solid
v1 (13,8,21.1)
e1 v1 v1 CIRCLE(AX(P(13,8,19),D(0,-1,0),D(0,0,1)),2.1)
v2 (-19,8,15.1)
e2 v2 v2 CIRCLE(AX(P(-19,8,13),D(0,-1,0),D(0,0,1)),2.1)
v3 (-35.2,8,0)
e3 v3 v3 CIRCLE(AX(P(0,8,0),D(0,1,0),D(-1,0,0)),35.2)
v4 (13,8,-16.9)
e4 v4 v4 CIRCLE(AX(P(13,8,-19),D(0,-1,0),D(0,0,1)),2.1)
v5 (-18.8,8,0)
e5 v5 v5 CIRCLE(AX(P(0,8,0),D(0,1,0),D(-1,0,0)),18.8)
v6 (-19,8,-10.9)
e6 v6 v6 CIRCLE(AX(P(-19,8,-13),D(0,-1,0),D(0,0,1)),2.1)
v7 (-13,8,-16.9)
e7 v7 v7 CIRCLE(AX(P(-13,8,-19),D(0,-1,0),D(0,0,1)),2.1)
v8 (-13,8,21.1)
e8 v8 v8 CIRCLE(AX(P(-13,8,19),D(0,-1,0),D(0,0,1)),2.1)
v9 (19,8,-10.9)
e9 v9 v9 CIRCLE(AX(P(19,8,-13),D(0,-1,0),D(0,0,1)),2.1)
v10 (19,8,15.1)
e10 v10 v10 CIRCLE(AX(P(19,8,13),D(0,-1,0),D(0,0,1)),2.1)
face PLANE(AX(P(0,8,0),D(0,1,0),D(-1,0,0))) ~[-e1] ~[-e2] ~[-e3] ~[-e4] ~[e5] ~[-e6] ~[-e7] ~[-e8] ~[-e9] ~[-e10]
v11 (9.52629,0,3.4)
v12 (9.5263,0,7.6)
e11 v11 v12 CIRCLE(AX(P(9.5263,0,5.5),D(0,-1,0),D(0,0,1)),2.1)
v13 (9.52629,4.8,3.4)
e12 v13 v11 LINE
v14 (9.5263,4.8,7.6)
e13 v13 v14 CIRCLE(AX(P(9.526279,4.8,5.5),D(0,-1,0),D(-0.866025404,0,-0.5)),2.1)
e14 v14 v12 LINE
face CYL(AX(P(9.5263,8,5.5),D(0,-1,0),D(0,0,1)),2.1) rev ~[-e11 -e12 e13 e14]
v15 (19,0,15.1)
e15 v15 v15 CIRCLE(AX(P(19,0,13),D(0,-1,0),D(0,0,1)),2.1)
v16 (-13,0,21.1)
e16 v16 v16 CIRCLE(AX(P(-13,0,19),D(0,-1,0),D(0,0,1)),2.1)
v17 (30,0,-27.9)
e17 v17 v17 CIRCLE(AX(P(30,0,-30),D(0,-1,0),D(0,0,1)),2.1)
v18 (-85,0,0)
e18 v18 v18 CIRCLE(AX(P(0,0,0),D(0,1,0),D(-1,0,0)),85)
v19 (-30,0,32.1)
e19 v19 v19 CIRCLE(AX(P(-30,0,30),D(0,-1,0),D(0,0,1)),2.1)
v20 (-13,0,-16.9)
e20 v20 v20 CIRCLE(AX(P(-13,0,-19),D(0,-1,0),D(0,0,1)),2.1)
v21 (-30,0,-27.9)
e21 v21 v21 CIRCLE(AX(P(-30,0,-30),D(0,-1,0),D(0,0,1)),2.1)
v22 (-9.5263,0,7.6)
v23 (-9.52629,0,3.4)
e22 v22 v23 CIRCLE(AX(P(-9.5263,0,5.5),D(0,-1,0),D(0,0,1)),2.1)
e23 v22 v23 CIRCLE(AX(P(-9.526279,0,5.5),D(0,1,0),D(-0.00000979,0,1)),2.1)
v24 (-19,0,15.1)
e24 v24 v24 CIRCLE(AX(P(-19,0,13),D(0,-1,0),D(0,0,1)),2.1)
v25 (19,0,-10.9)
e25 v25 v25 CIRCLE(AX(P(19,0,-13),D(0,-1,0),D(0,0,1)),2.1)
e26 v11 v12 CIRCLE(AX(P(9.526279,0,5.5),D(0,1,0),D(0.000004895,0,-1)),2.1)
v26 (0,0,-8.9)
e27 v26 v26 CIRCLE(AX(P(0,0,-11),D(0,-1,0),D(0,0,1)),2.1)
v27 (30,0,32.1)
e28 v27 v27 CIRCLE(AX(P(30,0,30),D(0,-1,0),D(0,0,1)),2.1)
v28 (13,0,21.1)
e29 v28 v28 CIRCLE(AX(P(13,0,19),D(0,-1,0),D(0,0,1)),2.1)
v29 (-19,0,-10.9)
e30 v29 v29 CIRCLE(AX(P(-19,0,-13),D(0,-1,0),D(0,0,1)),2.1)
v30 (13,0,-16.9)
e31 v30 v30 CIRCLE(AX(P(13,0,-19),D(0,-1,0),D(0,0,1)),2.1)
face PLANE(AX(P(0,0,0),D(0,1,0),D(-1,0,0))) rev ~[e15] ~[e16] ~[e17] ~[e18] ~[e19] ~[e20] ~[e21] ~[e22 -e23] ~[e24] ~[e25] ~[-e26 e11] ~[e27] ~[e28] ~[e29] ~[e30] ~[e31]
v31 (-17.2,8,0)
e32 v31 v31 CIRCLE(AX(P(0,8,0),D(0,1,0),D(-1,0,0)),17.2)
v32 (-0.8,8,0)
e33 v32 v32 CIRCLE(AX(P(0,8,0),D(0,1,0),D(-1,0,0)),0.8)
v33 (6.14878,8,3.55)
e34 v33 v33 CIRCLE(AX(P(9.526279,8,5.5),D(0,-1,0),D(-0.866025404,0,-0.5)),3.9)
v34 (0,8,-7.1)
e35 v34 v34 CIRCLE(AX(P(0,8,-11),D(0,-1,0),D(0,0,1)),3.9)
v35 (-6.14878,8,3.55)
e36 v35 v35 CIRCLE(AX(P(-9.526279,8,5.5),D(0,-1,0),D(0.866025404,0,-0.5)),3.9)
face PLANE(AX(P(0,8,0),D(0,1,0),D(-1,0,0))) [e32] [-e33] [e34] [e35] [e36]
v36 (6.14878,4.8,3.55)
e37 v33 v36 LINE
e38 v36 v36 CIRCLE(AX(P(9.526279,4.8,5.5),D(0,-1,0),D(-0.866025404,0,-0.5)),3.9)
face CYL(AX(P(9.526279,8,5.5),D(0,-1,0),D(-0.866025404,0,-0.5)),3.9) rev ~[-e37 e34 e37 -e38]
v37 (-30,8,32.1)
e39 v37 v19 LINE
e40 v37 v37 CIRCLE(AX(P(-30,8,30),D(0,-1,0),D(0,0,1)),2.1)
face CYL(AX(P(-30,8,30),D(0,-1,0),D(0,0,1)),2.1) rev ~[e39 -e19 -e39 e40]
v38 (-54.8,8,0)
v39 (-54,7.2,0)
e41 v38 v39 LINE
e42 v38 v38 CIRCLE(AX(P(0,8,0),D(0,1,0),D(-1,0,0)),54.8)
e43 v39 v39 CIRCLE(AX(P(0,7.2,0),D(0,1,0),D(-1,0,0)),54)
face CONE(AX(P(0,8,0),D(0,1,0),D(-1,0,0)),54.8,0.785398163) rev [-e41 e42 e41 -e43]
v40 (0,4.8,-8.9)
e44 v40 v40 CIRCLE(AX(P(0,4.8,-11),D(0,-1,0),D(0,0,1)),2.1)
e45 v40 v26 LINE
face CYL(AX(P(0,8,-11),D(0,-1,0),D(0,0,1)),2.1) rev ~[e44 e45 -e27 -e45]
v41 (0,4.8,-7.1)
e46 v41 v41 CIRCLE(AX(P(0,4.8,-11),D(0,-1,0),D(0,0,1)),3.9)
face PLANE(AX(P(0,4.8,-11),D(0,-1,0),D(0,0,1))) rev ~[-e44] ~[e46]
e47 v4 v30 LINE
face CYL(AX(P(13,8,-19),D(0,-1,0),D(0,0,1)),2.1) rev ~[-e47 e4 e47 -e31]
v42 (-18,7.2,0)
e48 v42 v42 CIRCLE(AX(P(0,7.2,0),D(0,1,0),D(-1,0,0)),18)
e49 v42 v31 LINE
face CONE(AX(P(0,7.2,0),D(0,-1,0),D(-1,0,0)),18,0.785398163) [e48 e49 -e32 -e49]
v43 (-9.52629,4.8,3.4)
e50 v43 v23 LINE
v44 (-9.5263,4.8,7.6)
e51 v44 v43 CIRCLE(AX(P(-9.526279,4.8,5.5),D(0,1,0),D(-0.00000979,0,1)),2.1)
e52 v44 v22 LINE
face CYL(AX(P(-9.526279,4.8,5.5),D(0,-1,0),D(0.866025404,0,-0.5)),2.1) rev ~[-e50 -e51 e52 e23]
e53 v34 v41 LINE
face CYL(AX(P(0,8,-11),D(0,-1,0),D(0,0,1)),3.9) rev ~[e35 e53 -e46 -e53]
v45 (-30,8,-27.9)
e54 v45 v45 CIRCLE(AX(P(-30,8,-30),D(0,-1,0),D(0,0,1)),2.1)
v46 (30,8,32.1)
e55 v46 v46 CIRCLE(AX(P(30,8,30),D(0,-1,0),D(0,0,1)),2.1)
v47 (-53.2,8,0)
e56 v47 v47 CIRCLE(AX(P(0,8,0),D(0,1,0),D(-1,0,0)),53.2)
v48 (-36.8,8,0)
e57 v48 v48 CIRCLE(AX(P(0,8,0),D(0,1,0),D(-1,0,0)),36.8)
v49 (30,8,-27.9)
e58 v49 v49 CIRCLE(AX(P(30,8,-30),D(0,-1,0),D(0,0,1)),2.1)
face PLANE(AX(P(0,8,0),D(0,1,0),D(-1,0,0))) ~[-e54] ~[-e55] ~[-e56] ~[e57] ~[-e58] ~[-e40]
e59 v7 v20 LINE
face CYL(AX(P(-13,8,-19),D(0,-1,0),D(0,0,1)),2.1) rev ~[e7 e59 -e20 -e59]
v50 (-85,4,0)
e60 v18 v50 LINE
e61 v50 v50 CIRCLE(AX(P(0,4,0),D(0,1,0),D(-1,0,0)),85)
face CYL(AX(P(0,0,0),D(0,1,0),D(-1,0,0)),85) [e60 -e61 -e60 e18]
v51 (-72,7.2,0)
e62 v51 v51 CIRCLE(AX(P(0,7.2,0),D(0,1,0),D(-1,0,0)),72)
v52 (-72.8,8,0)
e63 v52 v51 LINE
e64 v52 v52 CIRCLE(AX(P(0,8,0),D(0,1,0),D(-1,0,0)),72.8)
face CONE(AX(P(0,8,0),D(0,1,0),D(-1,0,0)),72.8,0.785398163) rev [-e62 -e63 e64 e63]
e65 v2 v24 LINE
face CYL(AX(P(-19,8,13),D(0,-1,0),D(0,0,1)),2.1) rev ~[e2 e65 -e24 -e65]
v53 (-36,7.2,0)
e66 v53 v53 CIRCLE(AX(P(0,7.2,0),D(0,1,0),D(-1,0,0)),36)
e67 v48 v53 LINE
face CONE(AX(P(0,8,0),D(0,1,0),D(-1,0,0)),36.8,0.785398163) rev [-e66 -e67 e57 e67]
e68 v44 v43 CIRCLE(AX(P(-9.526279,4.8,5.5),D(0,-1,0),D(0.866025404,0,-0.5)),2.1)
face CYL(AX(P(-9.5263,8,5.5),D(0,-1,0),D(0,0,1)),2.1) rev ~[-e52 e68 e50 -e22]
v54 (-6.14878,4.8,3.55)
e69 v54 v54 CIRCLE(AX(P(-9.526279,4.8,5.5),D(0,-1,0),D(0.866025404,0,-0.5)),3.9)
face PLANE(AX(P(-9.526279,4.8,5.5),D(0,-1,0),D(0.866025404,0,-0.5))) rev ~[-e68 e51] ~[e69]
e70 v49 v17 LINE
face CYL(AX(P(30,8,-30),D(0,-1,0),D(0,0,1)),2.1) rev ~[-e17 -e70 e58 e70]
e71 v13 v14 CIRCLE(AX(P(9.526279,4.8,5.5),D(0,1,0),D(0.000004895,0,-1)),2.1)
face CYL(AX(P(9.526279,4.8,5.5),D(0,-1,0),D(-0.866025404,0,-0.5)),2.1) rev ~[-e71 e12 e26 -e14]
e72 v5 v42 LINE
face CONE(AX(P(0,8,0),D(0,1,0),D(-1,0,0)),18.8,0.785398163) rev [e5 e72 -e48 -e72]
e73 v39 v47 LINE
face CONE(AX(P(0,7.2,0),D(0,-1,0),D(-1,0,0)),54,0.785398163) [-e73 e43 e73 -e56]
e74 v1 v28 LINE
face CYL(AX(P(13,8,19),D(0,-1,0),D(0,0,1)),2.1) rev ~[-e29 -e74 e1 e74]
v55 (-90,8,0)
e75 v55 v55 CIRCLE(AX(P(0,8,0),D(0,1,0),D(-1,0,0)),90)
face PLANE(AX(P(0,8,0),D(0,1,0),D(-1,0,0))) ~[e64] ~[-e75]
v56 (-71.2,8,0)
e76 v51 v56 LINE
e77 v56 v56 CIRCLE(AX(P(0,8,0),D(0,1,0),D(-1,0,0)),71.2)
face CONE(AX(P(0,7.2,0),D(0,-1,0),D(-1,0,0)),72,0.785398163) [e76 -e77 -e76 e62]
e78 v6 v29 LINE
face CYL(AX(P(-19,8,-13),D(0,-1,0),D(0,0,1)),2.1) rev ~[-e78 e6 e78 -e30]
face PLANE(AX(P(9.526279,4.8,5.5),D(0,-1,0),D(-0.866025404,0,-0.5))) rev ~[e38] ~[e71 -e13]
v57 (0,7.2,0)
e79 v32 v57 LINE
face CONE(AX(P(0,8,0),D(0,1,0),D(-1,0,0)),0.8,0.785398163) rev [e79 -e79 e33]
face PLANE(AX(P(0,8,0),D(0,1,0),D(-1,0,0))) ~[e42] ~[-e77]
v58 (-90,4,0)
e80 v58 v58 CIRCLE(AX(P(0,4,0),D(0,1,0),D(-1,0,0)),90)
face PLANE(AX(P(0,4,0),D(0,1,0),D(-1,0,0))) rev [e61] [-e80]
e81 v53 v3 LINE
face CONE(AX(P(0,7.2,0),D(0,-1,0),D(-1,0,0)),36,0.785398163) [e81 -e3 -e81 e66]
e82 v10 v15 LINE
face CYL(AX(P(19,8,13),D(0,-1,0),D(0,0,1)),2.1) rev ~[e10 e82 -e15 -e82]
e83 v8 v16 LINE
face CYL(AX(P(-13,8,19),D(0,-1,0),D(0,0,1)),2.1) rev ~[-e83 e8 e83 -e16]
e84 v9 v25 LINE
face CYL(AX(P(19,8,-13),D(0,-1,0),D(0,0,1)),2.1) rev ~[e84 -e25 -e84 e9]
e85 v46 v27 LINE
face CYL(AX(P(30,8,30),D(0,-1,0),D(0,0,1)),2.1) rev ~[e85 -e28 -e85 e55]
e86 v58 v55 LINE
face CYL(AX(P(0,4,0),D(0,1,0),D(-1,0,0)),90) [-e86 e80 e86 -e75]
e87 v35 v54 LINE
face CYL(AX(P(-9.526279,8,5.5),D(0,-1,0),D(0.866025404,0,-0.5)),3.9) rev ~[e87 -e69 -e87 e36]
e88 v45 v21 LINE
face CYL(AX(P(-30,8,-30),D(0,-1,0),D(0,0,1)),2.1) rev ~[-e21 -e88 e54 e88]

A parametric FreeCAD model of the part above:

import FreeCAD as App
import Part
import Sketcher


def add_polygon(sketch, points):
    """Adds a closed chain of lines whose ends are joined by coincident constraints."""
    first, n = sketch.GeometryCount, len(points)
    for a, b in zip(points, points[1:] + points[:1]):
        sketch.addGeometry(Part.LineSegment(App.Vector(*a, 0), App.Vector(*b, 0)), False)
    for i in range(n):
        sketch.addConstraint(Sketcher.Constraint("Coincident", first + i, 2, first + (i + 1) % n, 1))

doc = App.newDocument("Part")
body = doc.addObject("PartDesign::Body", "Body")

# Sketch on XY plane
sketch1 = body.newObject("Sketcher::SketchObject", "Sketch")
sketch1.AttachmentSupport = (doc.getObject("XY_Plane"), [""])
sketch1.MapMode = "FlatFace"
add_polygon(sketch1, [(-85, 0), (0, 0), (0, 7.2), (-0.8, 8), (-17.2, 8), (-18, 7.2), (-18.8, 8), (-35.2, 8), (-36, 7.2), (-36.8, 8), (-53.2, 8), (-54, 7.2), (-54.8, 8), (-71.2, 8), (-72, 7.2), (-72.8, 8), (-90, 8), (-90, 4), (-85, 4)])  # lines 0-18
sketch1.addConstraint(Sketcher.Constraint("Horizontal", 0))
sketch1.addConstraint(Sketcher.Constraint("Vertical", 1))
sketch1.addConstraint(Sketcher.Constraint("Horizontal", 3))
sketch1.addConstraint(Sketcher.Constraint("Horizontal", 6))
sketch1.addConstraint(Sketcher.Constraint("Horizontal", 9))
sketch1.addConstraint(Sketcher.Constraint("Horizontal", 12))
sketch1.addConstraint(Sketcher.Constraint("Horizontal", 15))
sketch1.addConstraint(Sketcher.Constraint("Vertical", 16))
sketch1.addConstraint(Sketcher.Constraint("Horizontal", 17))
sketch1.addConstraint(Sketcher.Constraint("Vertical", 18))
sketch1.addConstraint(Sketcher.Constraint("Coincident", 0, 2, -1, 1))
sketch1.addConstraint(Sketcher.Constraint("Perpendicular", 2, 4))
sketch1.addConstraint(Sketcher.Constraint("Perpendicular", 4, 5))
sketch1.addConstraint(Sketcher.Constraint("Perpendicular", 5, 7))
sketch1.addConstraint(Sketcher.Constraint("Perpendicular", 7, 8))
sketch1.addConstraint(Sketcher.Constraint("Perpendicular", 8, 10))
sketch1.addConstraint(Sketcher.Constraint("Perpendicular", 10, 11))
sketch1.addConstraint(Sketcher.Constraint("Perpendicular", 11, 13))
sketch1.addConstraint(Sketcher.Constraint("Perpendicular", 13, 14))
sketch1.addConstraint(Sketcher.Constraint("Horizontal", 1, 2, 4, 2))
sketch1.addConstraint(Sketcher.Constraint("Horizontal", 3, 2, 5, 2))
sketch1.addConstraint(Sketcher.Constraint("Horizontal", 4, 2, 7, 2))
sketch1.addConstraint(Sketcher.Constraint("Horizontal", 6, 2, 8, 2))
sketch1.addConstraint(Sketcher.Constraint("Horizontal", 7, 2, 10, 2))
sketch1.addConstraint(Sketcher.Constraint("Horizontal", 9, 2, 11, 2))
sketch1.addConstraint(Sketcher.Constraint("Horizontal", 10, 2, 13, 2))
sketch1.addConstraint(Sketcher.Constraint("Horizontal", 12, 2, 14, 2))
sketch1.addConstraint(Sketcher.Constraint("Equal", 3, 6))
sketch1.addConstraint(Sketcher.Constraint("Equal", 6, 9))
sketch1.addConstraint(Sketcher.Constraint("Equal", 9, 12))
sketch1.addConstraint(Sketcher.Constraint("Equal", 16, 18))
sketch1.addConstraint(Sketcher.Constraint("Equal", 2, 4))
sketch1.addConstraint(Sketcher.Constraint("DistanceX", 17, 1, 17, 2, 5.0))
sketch1.addConstraint(Sketcher.Constraint("DistanceY", 16, 2, 16, 1, 4.0))
sketch1.addConstraint(Sketcher.Constraint("DistanceX", 4, 2, -1, 1, 18.0))
sketch1.addConstraint(Sketcher.Constraint("DistanceX", 15, 2, -1, 1, 90.0))
sketch1.addConstraint(Sketcher.Constraint("DistanceX", 2, 2, -1, 1, 0.8))
revolution = body.newObject("PartDesign::Revolution", "Revolution")
revolution.Profile = sketch1
revolution.ReferenceAxis = (sketch1, ["V_Axis"])
revolution.Angle = 360

# Sketch on XZ plane
sketch2 = body.newObject("Sketcher::SketchObject", "Sketch001")
sketch2.AttachmentSupport = (doc.getObject("XZ_Plane"), [""])
sketch2.MapMode = "FlatFace"
sketch2.AttachmentOffset = App.Placement(App.Vector(0, 0, -8), App.Rotation())
sketch2.addGeometry(Part.Circle(App.Vector(0, -11, 0), App.Vector(0, 0, 1), 2.1), False)
sketch2.addGeometry(Part.Circle(App.Vector(-9.5263, 5.5, 0), App.Vector(0, 0, 1), 2.1), False)
sketch2.addGeometry(Part.Circle(App.Vector(9.5263, 5.5, 0), App.Vector(0, 0, 1), 2.1), False)
sketch2.addGeometry(Part.Circle(App.Vector(-30, -30, 0), App.Vector(0, 0, 1), 2.1), False)
sketch2.addGeometry(Part.Circle(App.Vector(-19, -13, 0), App.Vector(0, 0, 1), 2.1), False)
sketch2.addGeometry(Part.Circle(App.Vector(-13, -19, 0), App.Vector(0, 0, 1), 2.1), False)
sketch2.addGeometry(Part.Circle(App.Vector(13, -19, 0), App.Vector(0, 0, 1), 2.1), False)
sketch2.addGeometry(Part.Circle(App.Vector(19, -13, 0), App.Vector(0, 0, 1), 2.1), False)
sketch2.addGeometry(Part.Circle(App.Vector(30, -30, 0), App.Vector(0, 0, 1), 2.1), False)
sketch2.addGeometry(Part.Circle(App.Vector(30, 30, 0), App.Vector(0, 0, 1), 2.1), False)
sketch2.addGeometry(Part.Circle(App.Vector(-30, 30, 0), App.Vector(0, 0, 1), 2.1), False)
sketch2.addGeometry(Part.Circle(App.Vector(-13, 19, 0), App.Vector(0, 0, 1), 2.1), False)
sketch2.addGeometry(Part.Circle(App.Vector(13, 19, 0), App.Vector(0, 0, 1), 2.1), False)
sketch2.addGeometry(Part.Circle(App.Vector(19, 13, 0), App.Vector(0, 0, 1), 2.1), False)
sketch2.addGeometry(Part.Circle(App.Vector(-19, 13, 0), App.Vector(0, 0, 1), 2.1), False)
sketch2.addConstraint(Sketcher.Constraint("Equal", 0, 1))
sketch2.addConstraint(Sketcher.Constraint("Equal", 1, 2))
sketch2.addConstraint(Sketcher.Constraint("Equal", 2, 3))
sketch2.addConstraint(Sketcher.Constraint("Equal", 3, 4))
sketch2.addConstraint(Sketcher.Constraint("Equal", 4, 5))
sketch2.addConstraint(Sketcher.Constraint("Equal", 5, 6))
sketch2.addConstraint(Sketcher.Constraint("Equal", 6, 7))
sketch2.addConstraint(Sketcher.Constraint("Equal", 7, 8))
sketch2.addConstraint(Sketcher.Constraint("Equal", 8, 9))
sketch2.addConstraint(Sketcher.Constraint("Equal", 9, 10))
sketch2.addConstraint(Sketcher.Constraint("Equal", 10, 11))
sketch2.addConstraint(Sketcher.Constraint("Equal", 11, 12))
sketch2.addConstraint(Sketcher.Constraint("Equal", 12, 13))
sketch2.addConstraint(Sketcher.Constraint("Equal", 13, 14))
sketch2.addConstraint(Sketcher.Constraint("Symmetric", 3, 3, 9, 3, -1, 1))
sketch2.addConstraint(Sketcher.Constraint("Symmetric", 8, 3, 10, 3, -1, 1))
sketch2.addConstraint(Sketcher.Constraint("Symmetric", 6, 3, 11, 3, -1, 1))
sketch2.addConstraint(Sketcher.Constraint("Symmetric", 5, 3, 12, 3, -1, 1))
sketch2.addConstraint(Sketcher.Constraint("Symmetric", 4, 3, 13, 3, -1, 1))
sketch2.addConstraint(Sketcher.Constraint("Symmetric", 7, 3, 14, 3, -1, 1))
sketch2.addConstraint(Sketcher.Constraint("Symmetric", 1, 3, 2, 3, -2))
sketch2.addConstraint(Sketcher.Constraint("Symmetric", 5, 3, 6, 3, -2))
sketch2.addConstraint(Sketcher.Constraint("Symmetric", 4, 3, 7, 3, -2))
sketch2.addConstraint(Sketcher.Constraint("Symmetric", 3, 3, 8, 3, -2))
sketch2.addConstraint(Sketcher.Constraint("PointOnObject", 0, 3, -2))
sketch2.addConstraint(Sketcher.Constraint("Diameter", 0, 4.2))
sketch2.addConstraint(Sketcher.Constraint("DistanceY", 0, 3, -1, 1, 11.0))
sketch2.addConstraint(Sketcher.Constraint("DistanceX", 3, 3, -1, 1, 30.0))
sketch2.addConstraint(Sketcher.Constraint("DistanceY", 3, 3, -1, 1, 30.0))
sketch2.addConstraint(Sketcher.Constraint("DistanceX", 4, 3, -1, 1, 19.0))
sketch2.addConstraint(Sketcher.Constraint("DistanceY", 4, 3, -1, 1, 13.0))
sketch2.addConstraint(Sketcher.Constraint("DistanceX", 5, 3, -1, 1, 13.0))
sketch2.addConstraint(Sketcher.Constraint("DistanceY", 5, 3, -1, 1, 19.0))
sketch2.addConstraint(Sketcher.Constraint("DistanceY", -1, 1, 1, 3, 5.5))
sketch2.addConstraint(Sketcher.Constraint("DistanceX", 1, 3, -1, 1, 9.5263))
doc.recompute()
hole = body.newObject("PartDesign::Hole", "Hole")
hole.Profile = sketch2
hole.ThreadType = "None"
hole.Diameter = 4.2
hole.DepthType = "ThroughAll"
hole.Reversed = True

# Sketch on XZ plane
sketch3 = body.newObject("Sketcher::SketchObject", "Sketch002")
sketch3.AttachmentSupport = (doc.getObject("XZ_Plane"), [""])
sketch3.MapMode = "FlatFace"
sketch3.AttachmentOffset = App.Placement(App.Vector(0, 0, -8), App.Rotation())
sketch3.addGeometry(Part.Circle(App.Vector(0, -11, 0), App.Vector(0, 0, 1), 2.1), False)
sketch3.addConstraint(Sketcher.Constraint("PointOnObject", 0, 3, -2))
sketch3.addConstraint(Sketcher.Constraint("Diameter", 0, 4.2))
sketch3.addConstraint(Sketcher.Constraint("DistanceY", 0, 3, -1, 1, 11.0))
doc.recompute()
hole2 = body.newObject("PartDesign::Hole", "Hole001")
hole2.Profile = sketch3
hole2.ThreadType = "None"
hole2.Diameter = 4.2
hole2.DepthType = "ThroughAll"
hole2.HoleCutType = "Counterbore"
hole2.HoleCutDiameter = 7.8
hole2.HoleCutDepth = 3.2
hole2.Reversed = True
doc.recompute()

polarpattern = body.newObject("PartDesign::PolarPattern", "PolarPattern")
polarpattern.Originals = [hole2]
polarpattern.Axis = (doc.getObject("Y_Axis"), [""])
polarpattern.Angle = 360
polarpattern.Occurrences = 3
body.Tip = polarpattern

doc.recompute()
